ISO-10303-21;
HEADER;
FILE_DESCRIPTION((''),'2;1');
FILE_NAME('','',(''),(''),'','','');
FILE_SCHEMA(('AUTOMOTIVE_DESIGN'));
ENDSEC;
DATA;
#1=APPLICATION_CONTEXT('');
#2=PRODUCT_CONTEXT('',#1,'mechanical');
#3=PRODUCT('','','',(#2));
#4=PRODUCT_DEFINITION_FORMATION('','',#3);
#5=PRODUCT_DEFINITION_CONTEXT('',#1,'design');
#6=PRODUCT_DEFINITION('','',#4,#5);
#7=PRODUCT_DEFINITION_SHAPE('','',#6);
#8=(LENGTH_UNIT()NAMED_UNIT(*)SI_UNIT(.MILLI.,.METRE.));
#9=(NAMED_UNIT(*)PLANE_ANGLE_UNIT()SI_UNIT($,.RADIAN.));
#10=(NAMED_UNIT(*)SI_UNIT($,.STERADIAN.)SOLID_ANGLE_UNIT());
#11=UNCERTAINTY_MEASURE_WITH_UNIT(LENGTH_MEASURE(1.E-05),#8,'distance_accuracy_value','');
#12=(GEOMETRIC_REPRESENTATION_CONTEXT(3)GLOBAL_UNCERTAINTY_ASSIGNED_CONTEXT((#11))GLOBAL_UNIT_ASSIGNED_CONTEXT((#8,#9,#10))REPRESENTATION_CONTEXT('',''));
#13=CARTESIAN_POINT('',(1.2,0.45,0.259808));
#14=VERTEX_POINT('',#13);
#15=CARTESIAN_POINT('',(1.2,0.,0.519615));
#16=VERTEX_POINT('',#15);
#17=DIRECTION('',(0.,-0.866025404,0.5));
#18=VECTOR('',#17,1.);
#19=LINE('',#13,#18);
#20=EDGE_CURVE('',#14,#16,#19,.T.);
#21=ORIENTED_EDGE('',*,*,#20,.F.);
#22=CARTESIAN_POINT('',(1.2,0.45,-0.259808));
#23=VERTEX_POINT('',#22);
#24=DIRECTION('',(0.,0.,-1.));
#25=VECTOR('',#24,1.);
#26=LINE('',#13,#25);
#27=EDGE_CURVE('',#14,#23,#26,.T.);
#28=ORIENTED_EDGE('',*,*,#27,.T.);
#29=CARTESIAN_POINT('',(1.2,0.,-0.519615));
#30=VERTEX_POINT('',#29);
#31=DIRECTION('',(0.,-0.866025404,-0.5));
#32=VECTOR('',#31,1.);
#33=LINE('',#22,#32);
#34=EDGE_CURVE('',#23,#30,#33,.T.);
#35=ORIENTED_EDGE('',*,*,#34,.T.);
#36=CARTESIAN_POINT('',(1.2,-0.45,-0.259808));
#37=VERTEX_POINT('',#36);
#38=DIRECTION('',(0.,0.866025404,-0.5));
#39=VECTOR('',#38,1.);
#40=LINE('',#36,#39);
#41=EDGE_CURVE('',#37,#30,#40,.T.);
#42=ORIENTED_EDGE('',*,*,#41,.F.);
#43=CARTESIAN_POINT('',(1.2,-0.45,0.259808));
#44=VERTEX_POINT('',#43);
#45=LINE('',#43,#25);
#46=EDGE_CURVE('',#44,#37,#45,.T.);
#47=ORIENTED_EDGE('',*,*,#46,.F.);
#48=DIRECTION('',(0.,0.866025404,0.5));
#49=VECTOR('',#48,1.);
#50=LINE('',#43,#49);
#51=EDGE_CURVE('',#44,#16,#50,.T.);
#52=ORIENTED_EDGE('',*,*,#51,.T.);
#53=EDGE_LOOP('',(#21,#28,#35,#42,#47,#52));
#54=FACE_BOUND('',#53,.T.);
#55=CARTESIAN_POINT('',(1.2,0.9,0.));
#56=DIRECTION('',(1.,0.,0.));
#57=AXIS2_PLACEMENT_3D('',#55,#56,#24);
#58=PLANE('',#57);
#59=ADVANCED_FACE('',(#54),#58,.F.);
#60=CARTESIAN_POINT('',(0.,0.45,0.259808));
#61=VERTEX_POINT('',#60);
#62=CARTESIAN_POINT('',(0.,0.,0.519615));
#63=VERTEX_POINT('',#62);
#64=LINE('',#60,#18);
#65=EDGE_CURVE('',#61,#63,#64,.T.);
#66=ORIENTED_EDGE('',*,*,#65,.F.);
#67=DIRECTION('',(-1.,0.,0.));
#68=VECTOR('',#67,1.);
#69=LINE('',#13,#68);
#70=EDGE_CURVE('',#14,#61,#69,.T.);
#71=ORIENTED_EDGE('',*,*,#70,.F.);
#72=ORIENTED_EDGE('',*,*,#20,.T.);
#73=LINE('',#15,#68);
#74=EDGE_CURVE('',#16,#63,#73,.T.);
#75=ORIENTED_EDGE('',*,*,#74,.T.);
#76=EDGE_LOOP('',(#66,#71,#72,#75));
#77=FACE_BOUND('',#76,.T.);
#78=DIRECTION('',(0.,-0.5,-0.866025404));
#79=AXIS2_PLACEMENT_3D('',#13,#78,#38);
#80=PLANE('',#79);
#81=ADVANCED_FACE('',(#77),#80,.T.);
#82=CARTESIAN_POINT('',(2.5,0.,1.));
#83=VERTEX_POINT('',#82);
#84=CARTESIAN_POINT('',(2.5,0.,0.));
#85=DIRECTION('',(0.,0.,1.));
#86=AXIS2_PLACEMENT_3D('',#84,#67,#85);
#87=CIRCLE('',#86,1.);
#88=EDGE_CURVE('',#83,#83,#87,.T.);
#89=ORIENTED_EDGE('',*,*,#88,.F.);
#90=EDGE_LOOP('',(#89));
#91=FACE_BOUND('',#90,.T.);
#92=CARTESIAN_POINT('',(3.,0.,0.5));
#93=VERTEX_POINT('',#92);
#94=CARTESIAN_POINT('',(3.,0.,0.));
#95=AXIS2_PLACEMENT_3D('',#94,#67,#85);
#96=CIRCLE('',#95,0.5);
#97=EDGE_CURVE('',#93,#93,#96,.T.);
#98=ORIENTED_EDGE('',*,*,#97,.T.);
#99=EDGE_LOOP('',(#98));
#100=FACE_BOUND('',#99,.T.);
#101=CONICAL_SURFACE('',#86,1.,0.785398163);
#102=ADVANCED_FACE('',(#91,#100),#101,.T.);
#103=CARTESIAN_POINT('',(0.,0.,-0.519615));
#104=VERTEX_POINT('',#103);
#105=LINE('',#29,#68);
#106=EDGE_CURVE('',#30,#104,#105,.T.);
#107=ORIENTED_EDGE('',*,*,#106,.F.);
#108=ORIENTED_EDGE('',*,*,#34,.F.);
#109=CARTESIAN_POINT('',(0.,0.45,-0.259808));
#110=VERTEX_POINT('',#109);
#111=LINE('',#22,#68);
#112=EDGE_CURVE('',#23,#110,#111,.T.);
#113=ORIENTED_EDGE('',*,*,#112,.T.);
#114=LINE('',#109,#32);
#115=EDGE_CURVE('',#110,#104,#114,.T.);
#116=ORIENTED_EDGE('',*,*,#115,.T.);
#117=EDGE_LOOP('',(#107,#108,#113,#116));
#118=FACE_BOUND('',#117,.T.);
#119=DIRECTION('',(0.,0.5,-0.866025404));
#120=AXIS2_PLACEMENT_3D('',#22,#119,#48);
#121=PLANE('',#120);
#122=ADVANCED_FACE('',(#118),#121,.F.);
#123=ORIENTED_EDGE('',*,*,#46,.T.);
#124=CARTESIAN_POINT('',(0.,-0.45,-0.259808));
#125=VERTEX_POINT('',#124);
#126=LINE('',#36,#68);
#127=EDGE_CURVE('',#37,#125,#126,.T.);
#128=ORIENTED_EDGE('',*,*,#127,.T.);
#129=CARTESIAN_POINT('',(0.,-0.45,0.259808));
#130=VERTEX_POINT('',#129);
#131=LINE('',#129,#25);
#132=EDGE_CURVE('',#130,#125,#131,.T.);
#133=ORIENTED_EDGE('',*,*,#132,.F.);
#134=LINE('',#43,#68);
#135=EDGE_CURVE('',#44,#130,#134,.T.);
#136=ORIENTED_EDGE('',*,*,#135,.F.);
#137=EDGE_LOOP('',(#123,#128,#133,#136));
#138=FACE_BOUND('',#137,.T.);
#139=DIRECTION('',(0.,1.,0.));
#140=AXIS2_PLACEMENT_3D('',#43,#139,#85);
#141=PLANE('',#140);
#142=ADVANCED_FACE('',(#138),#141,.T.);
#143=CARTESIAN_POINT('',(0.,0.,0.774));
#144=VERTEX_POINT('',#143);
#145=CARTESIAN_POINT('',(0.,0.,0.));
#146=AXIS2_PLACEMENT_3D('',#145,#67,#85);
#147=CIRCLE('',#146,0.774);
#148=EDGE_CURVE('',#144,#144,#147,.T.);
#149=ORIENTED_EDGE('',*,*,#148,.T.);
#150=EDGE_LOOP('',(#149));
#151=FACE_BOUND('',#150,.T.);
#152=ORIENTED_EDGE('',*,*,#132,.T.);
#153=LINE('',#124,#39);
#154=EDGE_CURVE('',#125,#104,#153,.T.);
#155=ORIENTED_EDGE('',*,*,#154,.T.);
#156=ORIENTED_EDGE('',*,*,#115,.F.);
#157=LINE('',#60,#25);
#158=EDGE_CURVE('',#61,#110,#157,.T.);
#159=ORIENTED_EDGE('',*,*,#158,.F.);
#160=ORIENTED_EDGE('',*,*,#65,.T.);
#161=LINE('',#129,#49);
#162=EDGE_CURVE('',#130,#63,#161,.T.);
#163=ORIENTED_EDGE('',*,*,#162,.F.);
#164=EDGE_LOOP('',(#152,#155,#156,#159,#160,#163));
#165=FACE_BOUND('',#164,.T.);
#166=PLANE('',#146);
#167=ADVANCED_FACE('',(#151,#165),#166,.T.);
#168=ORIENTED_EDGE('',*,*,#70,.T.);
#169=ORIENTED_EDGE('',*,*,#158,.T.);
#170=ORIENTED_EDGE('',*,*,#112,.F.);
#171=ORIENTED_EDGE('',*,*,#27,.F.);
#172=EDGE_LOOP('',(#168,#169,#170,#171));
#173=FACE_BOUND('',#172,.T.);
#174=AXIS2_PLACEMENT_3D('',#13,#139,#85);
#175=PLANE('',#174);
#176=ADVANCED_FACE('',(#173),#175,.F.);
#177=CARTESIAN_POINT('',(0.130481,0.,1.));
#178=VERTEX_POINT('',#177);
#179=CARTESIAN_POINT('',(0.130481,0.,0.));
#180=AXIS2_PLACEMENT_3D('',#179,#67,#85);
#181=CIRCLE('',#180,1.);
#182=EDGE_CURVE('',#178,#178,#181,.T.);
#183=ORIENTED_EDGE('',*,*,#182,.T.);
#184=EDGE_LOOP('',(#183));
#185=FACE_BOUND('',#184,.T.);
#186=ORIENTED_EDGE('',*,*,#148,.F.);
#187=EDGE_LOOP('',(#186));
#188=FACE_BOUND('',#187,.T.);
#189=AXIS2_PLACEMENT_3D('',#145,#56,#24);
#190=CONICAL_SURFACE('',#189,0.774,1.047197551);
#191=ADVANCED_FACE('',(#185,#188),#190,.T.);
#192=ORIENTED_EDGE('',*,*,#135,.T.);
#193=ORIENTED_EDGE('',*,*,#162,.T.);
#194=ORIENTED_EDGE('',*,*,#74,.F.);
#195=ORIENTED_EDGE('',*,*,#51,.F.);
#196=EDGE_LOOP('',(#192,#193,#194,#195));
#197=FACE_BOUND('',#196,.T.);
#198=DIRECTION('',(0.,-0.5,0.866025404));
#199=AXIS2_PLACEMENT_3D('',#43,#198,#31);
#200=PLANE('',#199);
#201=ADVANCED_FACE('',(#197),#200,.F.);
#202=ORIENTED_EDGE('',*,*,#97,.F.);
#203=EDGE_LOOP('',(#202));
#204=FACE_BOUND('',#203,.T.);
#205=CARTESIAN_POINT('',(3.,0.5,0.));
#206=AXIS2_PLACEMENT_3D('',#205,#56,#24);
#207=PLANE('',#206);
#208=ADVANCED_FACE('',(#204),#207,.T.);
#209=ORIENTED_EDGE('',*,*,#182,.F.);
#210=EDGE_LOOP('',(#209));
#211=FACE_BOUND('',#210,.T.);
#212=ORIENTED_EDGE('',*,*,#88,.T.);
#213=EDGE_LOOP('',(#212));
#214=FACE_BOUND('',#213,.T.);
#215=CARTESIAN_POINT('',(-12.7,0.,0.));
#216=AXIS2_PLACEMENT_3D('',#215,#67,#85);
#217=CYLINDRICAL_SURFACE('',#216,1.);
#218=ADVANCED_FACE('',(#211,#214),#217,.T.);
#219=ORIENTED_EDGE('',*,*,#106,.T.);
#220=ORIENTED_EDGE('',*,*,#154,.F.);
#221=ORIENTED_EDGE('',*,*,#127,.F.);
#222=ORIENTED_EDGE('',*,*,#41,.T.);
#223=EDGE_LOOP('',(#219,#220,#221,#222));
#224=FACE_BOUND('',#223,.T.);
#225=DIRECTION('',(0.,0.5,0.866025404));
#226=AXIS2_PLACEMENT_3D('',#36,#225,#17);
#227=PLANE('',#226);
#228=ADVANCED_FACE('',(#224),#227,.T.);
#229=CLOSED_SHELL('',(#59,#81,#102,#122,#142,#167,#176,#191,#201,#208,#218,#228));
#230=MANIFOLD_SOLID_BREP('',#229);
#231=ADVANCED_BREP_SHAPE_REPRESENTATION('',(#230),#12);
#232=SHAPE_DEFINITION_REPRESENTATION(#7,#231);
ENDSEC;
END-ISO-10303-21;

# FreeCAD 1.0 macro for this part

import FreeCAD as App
import Part
import Sketcher
from FreeCAD import Vector
Q = App.Units.Quantity

doc = App.newDocument("Part")
params = doc.addObject("Spreadsheet::Sheet", "Params")
for row, (alias, value) in enumerate([
    ("sketch1_width", "3 mm"),
    ("sketch1_height", "0.5 mm"),
    ("revolution_angle", "360 deg"),
    ("pocket1_length", "1.2 mm"),
], start=1):
    params.set(f"A{row}", alias)
    params.set(f"B{row}", "=" + value)
    params.setAlias(f"B{row}", alias)

body = doc.addObject("PartDesign::Body", "Body")

sketch1 = doc.addObject("Sketcher::SketchObject", "Sketch")
body.addObject(sketch1)
sketch1.AttachmentSupport = (doc.XY_Plane, [""])
sketch1.MapMode = "FlatFace"
sketch1.addGeometry([
    Part.LineSegment(Vector(0, 0.774, 0), Vector(0, 0, 0)),
    Part.LineSegment(Vector(0, 0, 0), Vector(3, 0, 0)),
    Part.LineSegment(Vector(3, 0, 0), Vector(3, 0.5, 0)),
    Part.LineSegment(Vector(3, 0.5, 0), Vector(2.5, 1, 0)),
    Part.LineSegment(Vector(2.5, 1, 0), Vector(0.130481, 1, 0)),
    Part.LineSegment(Vector(0.130481, 1, 0), Vector(0, 0.774, 0)),
], False)
sketch1.addConstraint([
    Sketcher.Constraint("Coincident", 0, 2, 1, 1),
    Sketcher.Constraint("Coincident", 1, 2, 2, 1),
    Sketcher.Constraint("Coincident", 2, 2, 3, 1),
    Sketcher.Constraint("Coincident", 3, 2, 4, 1),
    Sketcher.Constraint("Coincident", 4, 2, 5, 1),
    Sketcher.Constraint("Coincident", 5, 2, 0, 1),
    Sketcher.Constraint("Vertical", 0),
    Sketcher.Constraint("Horizontal", 1),
    Sketcher.Constraint("Vertical", 2),
    Sketcher.Constraint("Horizontal", 4),
    Sketcher.Constraint("Coincident", 0, 2, -1, 1),
    Sketcher.Constraint("DistanceX", 1, 1, 1, 2, 3.0),
    Sketcher.Constraint("Angle", 3, Q("135 deg")),
    Sketcher.Constraint("Angle", 5, Q("-120 deg")),
    Sketcher.Constraint("DistanceY", 2, 1, 2, 2, 0.5),
    Sketcher.Constraint("DistanceY", -1, 1, 3, 2, 1.0),
    Sketcher.Constraint("DistanceY", 0, 2, 0, 1, 0.774),
])
sketch1.setExpression("Constraints[11]", "Params.sketch1_width")
sketch1.setExpression("Constraints[14]", "Params.sketch1_height")
revolution = doc.addObject("PartDesign::Revolution", "Revolution")
body.addObject(revolution)
revolution.Profile = sketch1
revolution.ReferenceAxis = (sketch1, ["H_Axis"])
revolution.setExpression("Angle", "Params.revolution_angle")

sketch2 = doc.addObject("Sketcher::SketchObject", "Sketch001")
body.addObject(sketch2)
sketch2.AttachmentSupport = (doc.YZ_Plane, [""])
sketch2.MapMode = "FlatFace"
sketch2.addGeometry([
    Part.LineSegment(Vector(0.45, 0.259808, 0), Vector(0.45, -0.259808, 0)),
    Part.LineSegment(Vector(0.45, -0.259808, 0), Vector(0, -0.519615, 0)),
    Part.LineSegment(Vector(0, -0.519615, 0), Vector(-0.45, -0.259808, 0)),
    Part.LineSegment(Vector(-0.45, -0.259808, 0), Vector(-0.45, 0.259808, 0)),
    Part.LineSegment(Vector(-0.45, 0.259808, 0), Vector(0, 0.519615, 0)),
    Part.LineSegment(Vector(0, 0.519615, 0), Vector(0.45, 0.259808, 0)),
], False)
sketch2.addConstraint([
    Sketcher.Constraint("Coincident", 0, 2, 1, 1),
    Sketcher.Constraint("Coincident", 1, 2, 2, 1),
    Sketcher.Constraint("Coincident", 2, 2, 3, 1),
    Sketcher.Constraint("Coincident", 3, 2, 4, 1),
    Sketcher.Constraint("Coincident", 4, 2, 5, 1),
    Sketcher.Constraint("Coincident", 5, 2, 0, 1),
    Sketcher.Constraint("Vertical", 0),
    Sketcher.Constraint("Vertical", 3),
    Sketcher.Constraint("Symmetric", 0, 2, 3, 2, -1, 1),
    Sketcher.Constraint("Symmetric", 1, 2, 4, 2, -1, 1),
    Sketcher.Constraint("PointOnObject", 1, 2, -2),
    Sketcher.Constraint("Parallel", 2, 5),
    Sketcher.Constraint("Horizontal", 0, 2, 2, 2),
    Sketcher.Constraint("Angle", 1, Q("-150 deg")),
    Sketcher.Constraint("DistanceX", 2, 2, 0, 2, 0.9),
    Sketcher.Constraint("DistanceY", 0, 2, 0, 1, 0.519615),
])
pocket1 = doc.addObject("PartDesign::Pocket", "Pocket")
body.addObject(pocket1)
pocket1.Profile = sketch2
pocket1.setExpression("Length", "Params.pocket1_length")
pocket1.Reversed = True

doc.recompute()
